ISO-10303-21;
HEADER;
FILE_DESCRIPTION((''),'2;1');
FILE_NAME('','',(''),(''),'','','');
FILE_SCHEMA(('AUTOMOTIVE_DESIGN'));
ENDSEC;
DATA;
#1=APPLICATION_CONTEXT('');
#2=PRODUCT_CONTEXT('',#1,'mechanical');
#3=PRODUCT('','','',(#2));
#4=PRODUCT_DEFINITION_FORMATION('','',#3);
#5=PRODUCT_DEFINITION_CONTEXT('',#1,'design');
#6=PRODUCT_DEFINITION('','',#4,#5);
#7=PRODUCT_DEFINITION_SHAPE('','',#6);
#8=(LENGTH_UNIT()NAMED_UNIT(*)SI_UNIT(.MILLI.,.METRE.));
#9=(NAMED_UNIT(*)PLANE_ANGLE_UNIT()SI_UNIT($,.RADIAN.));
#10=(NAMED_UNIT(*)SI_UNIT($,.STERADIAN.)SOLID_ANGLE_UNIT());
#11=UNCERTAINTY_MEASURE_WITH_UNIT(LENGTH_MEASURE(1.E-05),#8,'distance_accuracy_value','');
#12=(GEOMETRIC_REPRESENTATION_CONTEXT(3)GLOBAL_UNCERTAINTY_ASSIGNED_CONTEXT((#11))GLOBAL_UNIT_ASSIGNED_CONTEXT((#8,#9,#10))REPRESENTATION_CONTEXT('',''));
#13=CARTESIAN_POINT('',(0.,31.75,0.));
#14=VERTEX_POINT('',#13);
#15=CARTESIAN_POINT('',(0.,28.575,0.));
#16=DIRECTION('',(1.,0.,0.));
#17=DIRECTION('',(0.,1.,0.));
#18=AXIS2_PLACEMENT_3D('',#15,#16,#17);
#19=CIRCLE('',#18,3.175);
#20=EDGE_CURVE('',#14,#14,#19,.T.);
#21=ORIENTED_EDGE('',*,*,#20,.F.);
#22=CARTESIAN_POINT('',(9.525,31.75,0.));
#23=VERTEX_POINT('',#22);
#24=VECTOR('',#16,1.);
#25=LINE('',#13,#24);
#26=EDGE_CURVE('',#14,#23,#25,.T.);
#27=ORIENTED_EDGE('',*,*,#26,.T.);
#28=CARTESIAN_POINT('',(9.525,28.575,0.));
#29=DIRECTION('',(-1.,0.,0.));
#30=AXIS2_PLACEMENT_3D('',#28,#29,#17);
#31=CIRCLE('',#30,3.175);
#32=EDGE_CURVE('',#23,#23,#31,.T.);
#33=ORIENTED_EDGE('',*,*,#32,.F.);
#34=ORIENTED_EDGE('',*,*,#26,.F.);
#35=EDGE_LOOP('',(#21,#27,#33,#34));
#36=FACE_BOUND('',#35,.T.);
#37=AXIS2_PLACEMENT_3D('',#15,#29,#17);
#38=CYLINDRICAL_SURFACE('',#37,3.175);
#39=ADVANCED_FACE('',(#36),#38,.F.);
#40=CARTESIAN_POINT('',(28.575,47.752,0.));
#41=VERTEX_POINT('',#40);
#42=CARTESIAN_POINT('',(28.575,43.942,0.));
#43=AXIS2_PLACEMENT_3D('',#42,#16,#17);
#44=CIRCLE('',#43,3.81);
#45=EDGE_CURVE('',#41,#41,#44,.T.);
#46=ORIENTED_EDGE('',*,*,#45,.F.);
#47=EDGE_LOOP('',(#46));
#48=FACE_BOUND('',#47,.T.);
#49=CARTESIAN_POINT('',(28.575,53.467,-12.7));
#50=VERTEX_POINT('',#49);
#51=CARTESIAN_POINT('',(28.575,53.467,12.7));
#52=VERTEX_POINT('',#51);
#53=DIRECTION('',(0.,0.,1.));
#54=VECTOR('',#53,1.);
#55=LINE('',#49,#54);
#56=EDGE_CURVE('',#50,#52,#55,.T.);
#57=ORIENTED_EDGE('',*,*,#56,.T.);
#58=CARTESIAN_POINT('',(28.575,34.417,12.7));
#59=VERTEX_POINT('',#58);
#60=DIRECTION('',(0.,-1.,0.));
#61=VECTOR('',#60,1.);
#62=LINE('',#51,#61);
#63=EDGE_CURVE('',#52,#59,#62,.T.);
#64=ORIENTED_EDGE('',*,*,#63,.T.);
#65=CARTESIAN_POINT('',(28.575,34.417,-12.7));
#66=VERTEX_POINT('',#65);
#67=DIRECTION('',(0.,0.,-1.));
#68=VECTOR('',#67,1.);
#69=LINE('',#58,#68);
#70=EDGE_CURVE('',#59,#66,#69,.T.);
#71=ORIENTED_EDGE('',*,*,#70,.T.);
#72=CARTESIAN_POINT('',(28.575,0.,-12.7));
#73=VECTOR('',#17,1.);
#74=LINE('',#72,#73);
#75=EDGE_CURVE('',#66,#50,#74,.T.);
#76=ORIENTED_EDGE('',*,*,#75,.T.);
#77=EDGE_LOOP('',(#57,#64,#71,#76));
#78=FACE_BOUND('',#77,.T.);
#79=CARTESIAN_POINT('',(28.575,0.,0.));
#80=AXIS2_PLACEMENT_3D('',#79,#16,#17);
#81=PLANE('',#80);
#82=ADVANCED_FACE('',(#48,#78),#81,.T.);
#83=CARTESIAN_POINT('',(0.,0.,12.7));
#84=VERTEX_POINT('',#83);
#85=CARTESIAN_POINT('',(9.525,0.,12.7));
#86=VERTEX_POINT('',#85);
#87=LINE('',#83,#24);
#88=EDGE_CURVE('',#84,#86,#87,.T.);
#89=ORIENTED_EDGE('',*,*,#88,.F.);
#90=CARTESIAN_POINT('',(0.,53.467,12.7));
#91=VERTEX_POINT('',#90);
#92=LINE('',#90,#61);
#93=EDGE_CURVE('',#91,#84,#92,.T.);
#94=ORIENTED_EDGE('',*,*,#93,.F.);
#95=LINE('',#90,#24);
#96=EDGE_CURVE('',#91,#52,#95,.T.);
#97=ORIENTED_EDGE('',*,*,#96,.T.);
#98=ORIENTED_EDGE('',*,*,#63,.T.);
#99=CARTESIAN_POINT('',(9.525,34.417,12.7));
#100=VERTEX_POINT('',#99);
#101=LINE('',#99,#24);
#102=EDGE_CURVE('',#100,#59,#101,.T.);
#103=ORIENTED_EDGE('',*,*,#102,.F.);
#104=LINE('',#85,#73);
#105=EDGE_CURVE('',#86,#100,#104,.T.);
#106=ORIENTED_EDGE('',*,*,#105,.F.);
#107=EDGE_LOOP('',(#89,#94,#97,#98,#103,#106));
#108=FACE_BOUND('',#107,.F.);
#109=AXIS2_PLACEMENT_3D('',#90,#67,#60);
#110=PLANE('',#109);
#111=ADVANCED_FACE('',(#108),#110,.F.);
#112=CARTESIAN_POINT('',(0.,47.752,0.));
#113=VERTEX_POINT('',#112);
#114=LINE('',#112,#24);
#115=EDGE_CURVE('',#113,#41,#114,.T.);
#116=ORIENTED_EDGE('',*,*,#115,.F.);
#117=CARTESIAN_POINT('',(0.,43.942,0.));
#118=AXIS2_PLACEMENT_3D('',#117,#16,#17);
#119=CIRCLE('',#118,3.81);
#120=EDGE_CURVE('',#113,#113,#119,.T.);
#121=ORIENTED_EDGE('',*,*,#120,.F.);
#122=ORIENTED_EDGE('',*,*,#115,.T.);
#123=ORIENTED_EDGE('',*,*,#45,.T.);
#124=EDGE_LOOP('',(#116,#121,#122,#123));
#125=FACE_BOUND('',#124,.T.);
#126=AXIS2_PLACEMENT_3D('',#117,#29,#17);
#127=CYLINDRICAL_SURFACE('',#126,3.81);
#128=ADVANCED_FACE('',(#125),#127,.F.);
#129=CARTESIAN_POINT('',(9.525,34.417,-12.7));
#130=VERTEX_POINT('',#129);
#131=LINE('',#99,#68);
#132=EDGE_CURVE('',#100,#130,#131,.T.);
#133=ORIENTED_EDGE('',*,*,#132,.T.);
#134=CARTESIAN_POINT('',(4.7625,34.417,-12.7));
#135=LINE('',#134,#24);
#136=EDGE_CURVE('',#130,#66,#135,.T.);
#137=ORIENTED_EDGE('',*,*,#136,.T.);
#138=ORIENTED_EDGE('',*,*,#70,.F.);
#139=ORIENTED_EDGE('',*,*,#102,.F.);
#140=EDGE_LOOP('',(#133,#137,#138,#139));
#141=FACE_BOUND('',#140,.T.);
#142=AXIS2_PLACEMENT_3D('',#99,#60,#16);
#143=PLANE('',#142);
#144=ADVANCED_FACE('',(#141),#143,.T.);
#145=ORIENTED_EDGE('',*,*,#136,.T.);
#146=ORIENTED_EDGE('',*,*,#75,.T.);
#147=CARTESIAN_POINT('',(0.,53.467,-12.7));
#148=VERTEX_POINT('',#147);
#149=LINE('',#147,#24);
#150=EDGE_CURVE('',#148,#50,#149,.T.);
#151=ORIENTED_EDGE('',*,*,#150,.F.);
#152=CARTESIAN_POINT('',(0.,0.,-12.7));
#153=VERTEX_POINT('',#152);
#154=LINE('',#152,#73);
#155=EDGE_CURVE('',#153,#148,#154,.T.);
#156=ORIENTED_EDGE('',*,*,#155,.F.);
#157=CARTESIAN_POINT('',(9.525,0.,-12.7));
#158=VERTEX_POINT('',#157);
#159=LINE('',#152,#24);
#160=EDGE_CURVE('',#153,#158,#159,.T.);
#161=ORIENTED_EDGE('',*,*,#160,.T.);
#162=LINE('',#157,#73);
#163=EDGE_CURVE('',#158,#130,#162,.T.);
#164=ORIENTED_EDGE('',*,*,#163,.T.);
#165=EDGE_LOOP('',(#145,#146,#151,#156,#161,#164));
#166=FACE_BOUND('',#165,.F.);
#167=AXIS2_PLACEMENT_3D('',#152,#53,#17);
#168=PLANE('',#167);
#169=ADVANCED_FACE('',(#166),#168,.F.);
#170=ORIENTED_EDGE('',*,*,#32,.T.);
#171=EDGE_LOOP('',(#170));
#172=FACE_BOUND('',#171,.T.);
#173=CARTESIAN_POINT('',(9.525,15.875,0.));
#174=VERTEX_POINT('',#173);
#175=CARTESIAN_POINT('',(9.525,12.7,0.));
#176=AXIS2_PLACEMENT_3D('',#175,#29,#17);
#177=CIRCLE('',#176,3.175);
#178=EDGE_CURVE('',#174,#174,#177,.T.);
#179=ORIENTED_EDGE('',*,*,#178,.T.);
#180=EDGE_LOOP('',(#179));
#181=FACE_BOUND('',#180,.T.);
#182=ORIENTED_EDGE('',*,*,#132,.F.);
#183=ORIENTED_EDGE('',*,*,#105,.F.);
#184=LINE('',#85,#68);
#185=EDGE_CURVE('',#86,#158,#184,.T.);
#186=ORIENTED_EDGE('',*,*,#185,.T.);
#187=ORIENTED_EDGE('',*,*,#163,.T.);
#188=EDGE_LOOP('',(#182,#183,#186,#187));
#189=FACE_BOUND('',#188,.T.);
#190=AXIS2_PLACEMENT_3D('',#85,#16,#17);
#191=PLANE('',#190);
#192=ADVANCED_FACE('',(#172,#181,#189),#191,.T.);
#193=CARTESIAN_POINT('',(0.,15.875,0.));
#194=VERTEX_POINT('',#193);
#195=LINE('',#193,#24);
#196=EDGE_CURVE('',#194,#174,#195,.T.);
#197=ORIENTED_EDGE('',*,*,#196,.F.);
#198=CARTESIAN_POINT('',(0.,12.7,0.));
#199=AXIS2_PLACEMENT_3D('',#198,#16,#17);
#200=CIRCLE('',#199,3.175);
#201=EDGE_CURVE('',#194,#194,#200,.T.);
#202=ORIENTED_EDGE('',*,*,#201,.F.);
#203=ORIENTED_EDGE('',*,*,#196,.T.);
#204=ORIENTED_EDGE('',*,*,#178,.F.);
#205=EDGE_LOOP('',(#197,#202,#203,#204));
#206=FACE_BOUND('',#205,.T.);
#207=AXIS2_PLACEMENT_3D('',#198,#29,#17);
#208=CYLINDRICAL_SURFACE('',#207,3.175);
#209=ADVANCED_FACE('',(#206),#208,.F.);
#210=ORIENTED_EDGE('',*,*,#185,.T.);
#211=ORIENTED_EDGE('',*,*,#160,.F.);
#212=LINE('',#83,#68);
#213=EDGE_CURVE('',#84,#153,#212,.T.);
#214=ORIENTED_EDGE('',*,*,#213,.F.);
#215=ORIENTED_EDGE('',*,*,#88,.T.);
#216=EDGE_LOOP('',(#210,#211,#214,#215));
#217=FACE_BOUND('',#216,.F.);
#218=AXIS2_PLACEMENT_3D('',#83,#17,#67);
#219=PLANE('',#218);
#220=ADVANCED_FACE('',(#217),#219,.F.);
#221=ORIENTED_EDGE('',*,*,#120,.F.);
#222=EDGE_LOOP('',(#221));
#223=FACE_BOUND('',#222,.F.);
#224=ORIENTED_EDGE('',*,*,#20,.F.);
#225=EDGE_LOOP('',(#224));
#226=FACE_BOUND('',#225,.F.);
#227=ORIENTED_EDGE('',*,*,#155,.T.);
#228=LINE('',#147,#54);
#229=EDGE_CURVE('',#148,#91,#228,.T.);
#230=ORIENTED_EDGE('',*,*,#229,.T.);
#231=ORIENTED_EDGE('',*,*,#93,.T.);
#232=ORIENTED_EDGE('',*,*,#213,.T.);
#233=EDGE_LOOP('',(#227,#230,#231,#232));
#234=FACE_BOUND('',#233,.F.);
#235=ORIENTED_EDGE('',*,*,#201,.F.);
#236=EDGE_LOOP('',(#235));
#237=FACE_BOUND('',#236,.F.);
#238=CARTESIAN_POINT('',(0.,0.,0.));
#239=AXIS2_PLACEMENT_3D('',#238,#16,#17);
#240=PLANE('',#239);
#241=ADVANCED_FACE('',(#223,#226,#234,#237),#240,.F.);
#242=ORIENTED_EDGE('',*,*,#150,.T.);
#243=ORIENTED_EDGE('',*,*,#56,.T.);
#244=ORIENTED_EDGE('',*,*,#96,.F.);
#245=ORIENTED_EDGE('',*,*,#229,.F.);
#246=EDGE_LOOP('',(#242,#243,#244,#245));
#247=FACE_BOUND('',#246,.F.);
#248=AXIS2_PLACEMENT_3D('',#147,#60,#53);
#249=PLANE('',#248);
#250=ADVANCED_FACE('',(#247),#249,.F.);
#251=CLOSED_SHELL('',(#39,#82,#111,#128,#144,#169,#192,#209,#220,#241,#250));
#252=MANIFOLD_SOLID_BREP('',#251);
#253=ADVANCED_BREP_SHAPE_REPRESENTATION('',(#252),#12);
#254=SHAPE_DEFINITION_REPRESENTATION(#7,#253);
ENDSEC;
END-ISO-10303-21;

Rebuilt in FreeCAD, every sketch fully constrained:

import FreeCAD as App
import Part
import Sketcher

V = App.Vector
Q = App.Units.Quantity


def add_polygon(sketch, points):
    """Adds a closed chain of lines whose ends are joined by coincident constraints."""
    first, n = sketch.GeometryCount, len(points)
    for a, b in zip(points, points[1:] + points[:1]):
        sketch.addGeometry(Part.LineSegment(App.Vector(*a, 0), App.Vector(*b, 0)), False)
    for i in range(n):
        sketch.addConstraint(Sketcher.Constraint("Coincident", first + i, 2, first + (i + 1) % n, 1))

doc = App.newDocument("Part")
body = doc.addObject("PartDesign::Body", "Body")

# Sketch on YZ plane
sketch1 = body.newObject("Sketcher::SketchObject", "Sketch")
sketch1.AttachmentSupport = (doc.getObject("YZ_Plane"), [""])
sketch1.MapMode = "FlatFace"
add_polygon(sketch1, [(53.5, -12.7), (53.5, 12.7), (0, 12.7), (0, -12.7)])  # lines 0-3
sketch1.addGeometry(Part.Circle(V(12.7, 0, 0), V(0, 0, 1), 3.2), False)  # 4
sketch1.addGeometry(Part.Circle(V(28.6, 0, 0), V(0, 0, 1), 3.2), False)  # 5
sketch1.addGeometry(Part.Circle(V(43.9, 0, 0), V(0, 0, 1), 3.8), False)  # 6
sketch1.addConstraint(Sketcher.Constraint("Vertical", 0))
sketch1.addConstraint(Sketcher.Constraint("Horizontal", 1))
sketch1.addConstraint(Sketcher.Constraint("Vertical", 2))
sketch1.addConstraint(Sketcher.Constraint("Horizontal", 3))
sketch1.addConstraint(Sketcher.Constraint("Equal", 4, 5))
sketch1.addConstraint(Sketcher.Constraint("Symmetric", 1, 2, 2, 2, -1, 1))
sketch1.addConstraint(Sketcher.Constraint("PointOnObject", 4, 3, -1))
sketch1.addConstraint(Sketcher.Constraint("PointOnObject", 5, 3, -1))
sketch1.addConstraint(Sketcher.Constraint("PointOnObject", 6, 3, -1))
sketch1.addConstraint(Sketcher.Constraint("Diameter", 6, Q("0.3 in")))
sketch1.addConstraint(Sketcher.Constraint("Diameter", 4, Q("0.25 in")))
sketch1.addConstraint(Sketcher.Constraint("DistanceY", 0, 1, 0, 2, Q("1 in")))
sketch1.addConstraint(Sketcher.Constraint("DistanceX", -1, 1, 4, 3, Q("0.5 in")))
sketch1.addConstraint(Sketcher.Constraint("DistanceX", -1, 1, 6, 3, Q("1.73 in")))
sketch1.addConstraint(Sketcher.Constraint("DistanceX", 4, 3, 5, 3, Q("0.625 in")))
sketch1.addConstraint(Sketcher.Constraint("DistanceX", 6, 3, 0, 2, Q("0.375 in")))
pad1 = body.newObject("PartDesign::Pad", "Pad")
pad1.Profile = sketch1
pad1.Length = Q("1.125 in")

# Sketch on XY plane
sketch2 = body.newObject("Sketcher::SketchObject", "Sketch001")
sketch2.AttachmentSupport = (doc.getObject("XY_Plane"), [""])
sketch2.MapMode = "FlatFace"
sketch2.AttachmentOffset = App.Placement(V(0, 0, 0.5 * 25.4), App.Rotation())
add_polygon(sketch2, [(10, 0), (29, 0), (29, 34), (10, 34)])  # lines 0-3
sketch2.addConstraint(Sketcher.Constraint("Horizontal", 0))
sketch2.addConstraint(Sketcher.Constraint("Vertical", 1))
sketch2.addConstraint(Sketcher.Constraint("Horizontal", 2))
sketch2.addConstraint(Sketcher.Constraint("Vertical", 3))
sketch2.addConstraint(Sketcher.Constraint("PointOnObject", 0, 2, -1))
sketch2.addConstraint(Sketcher.Constraint("DistanceX", 0, 1, 0, 2, Q("0.75 in")))
sketch2.addConstraint(Sketcher.Constraint("DistanceX", -1, 1, 2, 2, Q("0.375 in")))
sketch2.addConstraint(Sketcher.Constraint("DistanceY", 1, 1, 1, 2, Q("1.355 in")))
pocket1 = body.newObject("PartDesign::Pocket", "Pocket")
pocket1.Profile = sketch2
pocket1.Type = "ThroughAll"

doc.recompute()
